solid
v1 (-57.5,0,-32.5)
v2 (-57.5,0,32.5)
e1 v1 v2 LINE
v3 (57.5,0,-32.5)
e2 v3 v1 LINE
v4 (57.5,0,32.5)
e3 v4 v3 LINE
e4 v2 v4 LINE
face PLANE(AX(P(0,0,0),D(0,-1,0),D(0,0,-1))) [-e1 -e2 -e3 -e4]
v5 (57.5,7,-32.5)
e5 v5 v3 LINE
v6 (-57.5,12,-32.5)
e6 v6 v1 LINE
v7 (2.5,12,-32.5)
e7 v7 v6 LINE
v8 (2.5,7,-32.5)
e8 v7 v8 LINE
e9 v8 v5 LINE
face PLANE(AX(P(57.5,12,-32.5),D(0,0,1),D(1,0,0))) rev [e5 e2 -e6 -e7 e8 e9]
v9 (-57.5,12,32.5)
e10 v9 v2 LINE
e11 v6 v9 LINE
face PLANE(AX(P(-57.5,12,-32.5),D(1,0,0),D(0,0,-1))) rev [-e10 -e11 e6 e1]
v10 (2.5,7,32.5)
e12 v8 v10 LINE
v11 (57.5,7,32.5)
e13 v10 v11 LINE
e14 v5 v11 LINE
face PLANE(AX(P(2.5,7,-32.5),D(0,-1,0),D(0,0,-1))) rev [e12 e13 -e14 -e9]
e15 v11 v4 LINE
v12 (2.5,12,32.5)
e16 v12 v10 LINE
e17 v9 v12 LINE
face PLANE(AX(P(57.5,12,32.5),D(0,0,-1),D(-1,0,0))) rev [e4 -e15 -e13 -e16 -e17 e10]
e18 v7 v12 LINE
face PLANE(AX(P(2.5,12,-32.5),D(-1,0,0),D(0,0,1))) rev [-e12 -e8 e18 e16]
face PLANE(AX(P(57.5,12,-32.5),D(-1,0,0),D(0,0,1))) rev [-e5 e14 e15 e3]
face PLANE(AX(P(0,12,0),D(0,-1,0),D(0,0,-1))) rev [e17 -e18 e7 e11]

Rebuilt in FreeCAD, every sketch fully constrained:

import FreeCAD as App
import Part
import Sketcher

V = App.Vector


def add_polygon(sketch, points):
    """Adds a closed chain of lines whose ends are joined by coincident constraints."""
    first, n = sketch.GeometryCount, len(points)
    for a, b in zip(points, points[1:] + points[:1]):
        sketch.addGeometry(Part.LineSegment(App.Vector(*a, 0), App.Vector(*b, 0)), False)
    for i in range(n):
        sketch.addConstraint(Sketcher.Constraint("Coincident", first + i, 2, first + (i + 1) % n, 1))

doc = App.newDocument("Part")
body = doc.addObject("PartDesign::Body", "Body")

# Sketch on XZ plane
sketch1 = body.newObject("Sketcher::SketchObject", "Sketch")
sketch1.AttachmentSupport = (doc.getObject("XZ_Plane"), [""])
sketch1.MapMode = "FlatFace"
add_polygon(sketch1, [(-58, -32), (-58, 32), (58, 32), (58, -32)])  # lines 0-3
sketch1.addConstraint([
    Sketcher.Constraint("Vertical", 0),
    Sketcher.Constraint("Horizontal", 1),
    Sketcher.Constraint("Vertical", 2),
    Sketcher.Constraint("Horizontal", 3),
    Sketcher.Constraint("Symmetric", 0, 2, 2, 2, -1, 1),
    Sketcher.Constraint("DistanceX", 1, 1, 1, 2, 115.0),
    Sketcher.Constraint("DistanceY", 0, 1, 0, 2, 65.0),
])
pad1 = body.newObject("PartDesign::Pad", "Pad")
pad1.Profile = sketch1
pad1.Length = 12
pad1.Reversed = True

# Sketch on XY plane
sketch2 = body.newObject("Sketcher::SketchObject", "Sketch001")
sketch2.AttachmentSupport = (doc.getObject("XY_Plane"), [""])
sketch2.MapMode = "FlatFace"
add_polygon(sketch2, [(2, 12), (2, 7), (58, 7), (58, 12)])  # lines 0-3
sketch2.addConstraint([
    Sketcher.Constraint("Vertical", 0),
    Sketcher.Constraint("Horizontal", 1),
    Sketcher.Constraint("Vertical", 2),
    Sketcher.Constraint("Horizontal", 3),
    Sketcher.Constraint("DistanceX", 1, 1, 1, 2, 55.0),
    Sketcher.Constraint("DistanceY", 0, 2, 0, 1, 5.0),
    Sketcher.Constraint("DistanceY", -1, 1, 0, 2, 7.0),
    Sketcher.Constraint("DistanceX", -1, 1, 0, 2, 2.5),
])
pocket1 = body.newObject("PartDesign::Pocket", "Pocket")
pocket1.Profile = sketch2
pocket1.Type = "ThroughAll"
pocket1.Midplane = True

doc.recompute()
